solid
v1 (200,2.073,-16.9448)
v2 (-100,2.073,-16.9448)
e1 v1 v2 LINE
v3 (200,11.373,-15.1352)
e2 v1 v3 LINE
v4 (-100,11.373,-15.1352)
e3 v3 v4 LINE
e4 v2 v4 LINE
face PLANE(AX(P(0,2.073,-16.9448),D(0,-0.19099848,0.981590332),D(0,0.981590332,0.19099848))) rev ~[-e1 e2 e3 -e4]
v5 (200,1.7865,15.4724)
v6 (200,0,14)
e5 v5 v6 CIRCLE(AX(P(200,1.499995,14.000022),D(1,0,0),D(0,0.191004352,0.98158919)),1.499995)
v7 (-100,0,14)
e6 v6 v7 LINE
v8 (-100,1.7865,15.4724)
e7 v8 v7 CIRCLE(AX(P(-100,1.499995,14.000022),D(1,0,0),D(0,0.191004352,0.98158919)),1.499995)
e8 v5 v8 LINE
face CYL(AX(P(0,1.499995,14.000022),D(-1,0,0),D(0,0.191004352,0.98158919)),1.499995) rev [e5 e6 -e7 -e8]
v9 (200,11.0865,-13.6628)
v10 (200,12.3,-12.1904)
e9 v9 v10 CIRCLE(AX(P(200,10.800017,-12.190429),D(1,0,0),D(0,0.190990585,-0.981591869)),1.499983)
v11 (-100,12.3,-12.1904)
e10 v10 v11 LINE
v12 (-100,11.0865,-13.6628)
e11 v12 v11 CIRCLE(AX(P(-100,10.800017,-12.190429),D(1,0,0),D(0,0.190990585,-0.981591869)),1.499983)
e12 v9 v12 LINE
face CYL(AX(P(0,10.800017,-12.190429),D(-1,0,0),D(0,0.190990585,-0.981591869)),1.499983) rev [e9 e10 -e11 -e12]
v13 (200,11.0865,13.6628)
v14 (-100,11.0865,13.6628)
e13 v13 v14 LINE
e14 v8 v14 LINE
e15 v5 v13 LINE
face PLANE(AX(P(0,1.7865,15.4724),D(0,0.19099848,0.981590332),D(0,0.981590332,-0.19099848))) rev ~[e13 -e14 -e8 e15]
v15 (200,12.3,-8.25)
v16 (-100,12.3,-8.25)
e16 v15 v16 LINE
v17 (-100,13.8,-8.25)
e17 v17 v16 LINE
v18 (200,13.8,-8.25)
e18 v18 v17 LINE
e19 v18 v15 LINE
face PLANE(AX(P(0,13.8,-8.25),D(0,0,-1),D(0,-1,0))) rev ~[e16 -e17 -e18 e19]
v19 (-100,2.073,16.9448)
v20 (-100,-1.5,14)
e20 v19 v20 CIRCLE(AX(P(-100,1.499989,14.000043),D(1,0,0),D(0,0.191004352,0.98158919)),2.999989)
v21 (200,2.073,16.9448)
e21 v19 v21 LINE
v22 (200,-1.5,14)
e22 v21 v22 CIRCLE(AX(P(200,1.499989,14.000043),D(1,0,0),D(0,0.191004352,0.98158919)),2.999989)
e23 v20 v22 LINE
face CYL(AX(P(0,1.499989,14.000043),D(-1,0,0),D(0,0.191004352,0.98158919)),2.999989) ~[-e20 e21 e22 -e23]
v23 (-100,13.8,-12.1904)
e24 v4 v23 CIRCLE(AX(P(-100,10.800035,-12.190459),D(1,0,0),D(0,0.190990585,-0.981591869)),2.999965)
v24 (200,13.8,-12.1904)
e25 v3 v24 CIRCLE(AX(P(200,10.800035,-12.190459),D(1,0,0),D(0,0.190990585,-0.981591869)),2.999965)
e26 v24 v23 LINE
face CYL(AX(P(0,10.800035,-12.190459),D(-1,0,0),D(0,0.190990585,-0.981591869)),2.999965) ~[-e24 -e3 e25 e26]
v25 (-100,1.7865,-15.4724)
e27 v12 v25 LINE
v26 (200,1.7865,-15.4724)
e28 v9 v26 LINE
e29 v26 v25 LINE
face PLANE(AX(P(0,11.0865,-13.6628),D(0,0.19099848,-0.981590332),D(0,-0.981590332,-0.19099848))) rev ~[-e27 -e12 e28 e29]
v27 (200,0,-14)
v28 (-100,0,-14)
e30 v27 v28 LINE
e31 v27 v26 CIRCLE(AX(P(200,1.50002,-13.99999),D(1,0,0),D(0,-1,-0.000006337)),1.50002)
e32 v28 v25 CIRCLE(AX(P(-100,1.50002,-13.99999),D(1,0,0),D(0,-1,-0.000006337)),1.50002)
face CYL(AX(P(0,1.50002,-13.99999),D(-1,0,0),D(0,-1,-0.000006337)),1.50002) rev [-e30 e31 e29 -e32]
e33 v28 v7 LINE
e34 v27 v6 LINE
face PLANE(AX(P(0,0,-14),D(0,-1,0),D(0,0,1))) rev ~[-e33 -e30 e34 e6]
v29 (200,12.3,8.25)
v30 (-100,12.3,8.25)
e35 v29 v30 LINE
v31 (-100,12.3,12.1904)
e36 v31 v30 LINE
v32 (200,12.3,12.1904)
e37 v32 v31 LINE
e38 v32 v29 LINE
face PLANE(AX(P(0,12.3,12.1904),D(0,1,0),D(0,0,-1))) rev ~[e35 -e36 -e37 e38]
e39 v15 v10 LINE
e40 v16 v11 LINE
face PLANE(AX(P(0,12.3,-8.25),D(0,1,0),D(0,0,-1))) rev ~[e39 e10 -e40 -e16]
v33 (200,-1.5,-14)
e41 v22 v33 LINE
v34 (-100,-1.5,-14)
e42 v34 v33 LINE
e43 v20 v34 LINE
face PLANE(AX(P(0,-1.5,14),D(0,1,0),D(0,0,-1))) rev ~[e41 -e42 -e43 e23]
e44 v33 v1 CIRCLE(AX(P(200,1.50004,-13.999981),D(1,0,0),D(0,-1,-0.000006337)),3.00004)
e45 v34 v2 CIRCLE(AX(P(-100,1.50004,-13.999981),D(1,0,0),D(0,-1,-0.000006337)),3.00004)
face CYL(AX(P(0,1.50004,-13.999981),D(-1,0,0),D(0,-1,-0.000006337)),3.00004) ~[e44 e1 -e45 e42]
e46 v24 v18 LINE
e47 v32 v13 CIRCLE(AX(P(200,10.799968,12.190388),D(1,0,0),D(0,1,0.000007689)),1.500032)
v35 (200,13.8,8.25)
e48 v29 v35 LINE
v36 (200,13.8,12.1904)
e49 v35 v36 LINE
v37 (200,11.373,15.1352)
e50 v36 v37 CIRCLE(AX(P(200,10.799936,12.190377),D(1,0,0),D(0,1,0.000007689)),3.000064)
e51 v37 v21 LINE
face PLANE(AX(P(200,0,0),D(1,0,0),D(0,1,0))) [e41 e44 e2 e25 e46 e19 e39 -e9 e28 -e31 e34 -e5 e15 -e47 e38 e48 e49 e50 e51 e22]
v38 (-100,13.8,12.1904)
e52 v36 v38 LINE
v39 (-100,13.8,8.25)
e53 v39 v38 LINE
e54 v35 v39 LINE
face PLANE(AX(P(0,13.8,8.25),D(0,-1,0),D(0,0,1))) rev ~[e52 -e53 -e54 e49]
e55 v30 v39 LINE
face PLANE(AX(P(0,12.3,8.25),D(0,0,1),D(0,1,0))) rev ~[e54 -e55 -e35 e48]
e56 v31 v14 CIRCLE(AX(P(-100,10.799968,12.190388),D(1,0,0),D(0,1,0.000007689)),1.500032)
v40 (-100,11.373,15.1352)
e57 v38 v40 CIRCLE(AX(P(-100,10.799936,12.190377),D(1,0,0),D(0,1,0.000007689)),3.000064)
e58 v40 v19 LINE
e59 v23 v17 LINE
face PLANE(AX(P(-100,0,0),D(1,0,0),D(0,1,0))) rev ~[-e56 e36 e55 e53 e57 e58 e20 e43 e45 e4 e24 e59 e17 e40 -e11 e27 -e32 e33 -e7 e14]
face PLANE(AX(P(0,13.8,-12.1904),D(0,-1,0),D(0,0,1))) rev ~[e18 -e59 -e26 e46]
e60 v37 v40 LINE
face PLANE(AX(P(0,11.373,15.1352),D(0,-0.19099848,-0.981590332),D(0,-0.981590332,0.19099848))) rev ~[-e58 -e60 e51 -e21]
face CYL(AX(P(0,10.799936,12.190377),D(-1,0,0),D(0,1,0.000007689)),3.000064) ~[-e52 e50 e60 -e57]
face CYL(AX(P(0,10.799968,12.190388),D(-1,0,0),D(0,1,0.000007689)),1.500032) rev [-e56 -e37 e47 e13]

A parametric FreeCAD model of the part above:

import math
import FreeCAD as App
import Part
import Sketcher

V = App.Vector
Q = App.Units.Quantity

doc = App.newDocument("Part")
body = doc.addObject("PartDesign::Body", "Body")

# Sketch on YZ plane
sketch1 = body.newObject("Sketcher::SketchObject", "Sketch")
sketch1.AttachmentSupport = (doc.getObject("YZ_Plane"), [""])
sketch1.MapMode = "FlatFace"
sketch1.addGeometry(Part.LineSegment(V(11.373, 15.1352, 0), V(2.073, 16.9448, 0)), False)
sketch1.addGeometry(Part.ArcOfCircle(Part.Circle(V(1.5, 14, 0), V(0, 0, 1), 3.000029), math.radians(78.98896), math.radians(180)), False)
sketch1.addGeometry(Part.LineSegment(V(-1.5, 14, 0), V(-1.5, -14, 0)), False)
sketch1.addGeometry(Part.ArcOfCircle(Part.Circle(V(1.5, -14, 0), V(0, 0, 1), 3), math.radians(180), math.radians(281.01104)), False)
sketch1.addGeometry(Part.LineSegment(V(2.073, -16.9448, 0), V(11.373, -15.1352, 0)), False)
sketch1.addGeometry(Part.ArcOfCircle(Part.Circle(V(10.8, -12.1904, 0), V(0, 0, 1), 3.000029), math.radians(-78.98896), math.radians(0)), False)
sketch1.addGeometry(Part.LineSegment(V(13.8, -12.1904, 0), V(13.8, -8.25, 0)), False)
sketch1.addGeometry(Part.LineSegment(V(13.8, -8.25, 0), V(12.3, -8.25, 0)), False)
sketch1.addGeometry(Part.LineSegment(V(12.3, -8.25, 0), V(12.3, -12.1904, 0)), False)
sketch1.addGeometry(Part.ArcOfCircle(Part.Circle(V(10.8, -12.1904, 0), V(0, 0, 1), 1.500015), math.radians(-78.98896), math.radians(0)), False)
sketch1.addGeometry(Part.LineSegment(V(11.0865, -13.6628, 0), V(1.7865, -15.4724, 0)), False)
sketch1.addGeometry(Part.ArcOfCircle(Part.Circle(V(1.5, -14, 0), V(0, 0, 1), 1.5), math.radians(180), math.radians(281.01104)), False)
sketch1.addGeometry(Part.LineSegment(V(0, -14, 0), V(0, 14, 0)), False)
sketch1.addGeometry(Part.ArcOfCircle(Part.Circle(V(1.5, 14, 0), V(0, 0, 1), 1.500015), math.radians(78.98896), math.radians(180)), False)
sketch1.addGeometry(Part.LineSegment(V(1.7865, 15.4724, 0), V(11.0865, 13.6628, 0)), False)
sketch1.addGeometry(Part.ArcOfCircle(Part.Circle(V(10.8, 12.1904, 0), V(0, 0, 1), 1.5), math.radians(0), math.radians(78.98896)), False)
sketch1.addGeometry(Part.LineSegment(V(12.3, 12.1904, 0), V(12.3, 8.25, 0)), False)
sketch1.addGeometry(Part.LineSegment(V(12.3, 8.25, 0), V(13.8, 8.25, 0)), False)
sketch1.addGeometry(Part.LineSegment(V(13.8, 8.25, 0), V(13.8, 12.1904, 0)), False)
sketch1.addGeometry(Part.ArcOfCircle(Part.Circle(V(10.8, 12.1904, 0), V(0, 0, 1), 3), math.radians(0), math.radians(78.98896)), False)
sketch1.addConstraint(Sketcher.Constraint("Tangent", 0, 2, 1, 1))
sketch1.addConstraint(Sketcher.Constraint("Tangent", 1, 2, 2, 1))
sketch1.addConstraint(Sketcher.Constraint("Tangent", 2, 2, 3, 1))
sketch1.addConstraint(Sketcher.Constraint("Tangent", 3, 2, 4, 1))
sketch1.addConstraint(Sketcher.Constraint("Tangent", 4, 2, 5, 1))
sketch1.addConstraint(Sketcher.Constraint("Tangent", 5, 2, 6, 1))
sketch1.addConstraint(Sketcher.Constraint("Coincident", 6, 2, 7, 1))
sketch1.addConstraint(Sketcher.Constraint("Coincident", 7, 2, 8, 1))
sketch1.addConstraint(Sketcher.Constraint("Tangent", 8, 2, 9, 2))
sketch1.addConstraint(Sketcher.Constraint("Tangent", 9, 1, 10, 1))
sketch1.addConstraint(Sketcher.Constraint("Tangent", 10, 2, 11, 2))
sketch1.addConstraint(Sketcher.Constraint("Tangent", 11, 1, 12, 1))
sketch1.addConstraint(Sketcher.Constraint("Tangent", 12, 2, 13, 2))
sketch1.addConstraint(Sketcher.Constraint("Tangent", 13, 1, 14, 1))
sketch1.addConstraint(Sketcher.Constraint("Tangent", 14, 2, 15, 2))
sketch1.addConstraint(Sketcher.Constraint("Tangent", 15, 1, 16, 1))
sketch1.addConstraint(Sketcher.Constraint("Coincident", 16, 2, 17, 1))
sketch1.addConstraint(Sketcher.Constraint("Coincident", 17, 2, 18, 1))
sketch1.addConstraint(Sketcher.Constraint("Tangent", 18, 2, 19, 1))
sketch1.addConstraint(Sketcher.Constraint("Tangent", 19, 2, 0, 1))
sketch1.addConstraint(Sketcher.Constraint("Vertical", 2))
sketch1.addConstraint(Sketcher.Constraint("Vertical", 6))
sketch1.addConstraint(Sketcher.Constraint("Horizontal", 7))
sketch1.addConstraint(Sketcher.Constraint("Vertical", 8))
sketch1.addConstraint(Sketcher.Constraint("Vertical", 12))
sketch1.addConstraint(Sketcher.Constraint("Vertical", 16))
sketch1.addConstraint(Sketcher.Constraint("Horizontal", 17))
sketch1.addConstraint(Sketcher.Constraint("Vertical", 18))
sketch1.addConstraint(Sketcher.Constraint("Coincident", 9, 3, 5, 3))
sketch1.addConstraint(Sketcher.Constraint("Coincident", 11, 3, 3, 3))
sketch1.addConstraint(Sketcher.Constraint("Coincident", 13, 3, 1, 3))
sketch1.addConstraint(Sketcher.Constraint("Coincident", 19, 3, 15, 3))
sketch1.addConstraint(Sketcher.Constraint("Equal", 1, 3))
sketch1.addConstraint(Sketcher.Constraint("Equal", 3, 5))
sketch1.addConstraint(Sketcher.Constraint("Equal", 9, 11))
sketch1.addConstraint(Sketcher.Constraint("Equal", 13, 15))
sketch1.addConstraint(Sketcher.Constraint("Equal", 5, 19))
sketch1.addConstraint(Sketcher.Constraint("Symmetric", 11, 1, 12, 2, -1, 1))
sketch1.addConstraint(Sketcher.Constraint("Symmetric", 5, 3, 15, 3, -1))
sketch1.addConstraint(Sketcher.Constraint("Equal", 8, 16))
sketch1.addConstraint(Sketcher.Constraint("Radius", 1, 3.0))
sketch1.addConstraint(Sketcher.Constraint("Radius", 9, 1.5))
sketch1.addConstraint(Sketcher.Constraint("DistanceY", 2, 2, 2, 1, 28.0))
sketch1.addConstraint(Sketcher.Constraint("DistanceX", -1, 1, 5, 3, 10.8))
sketch1.addConstraint(Sketcher.Constraint("Angle", 0, Q("168.989 deg")))
sketch1.addConstraint(Sketcher.Constraint("DistanceY", 6, 2, -1, 1, 8.25))
pad1 = body.newObject("PartDesign::Pad", "Pad")
pad1.Profile = sketch1
pad1.Type = "TwoLengths"
pad1.Length = 200
pad1.Length2 = 100

doc.recompute()
